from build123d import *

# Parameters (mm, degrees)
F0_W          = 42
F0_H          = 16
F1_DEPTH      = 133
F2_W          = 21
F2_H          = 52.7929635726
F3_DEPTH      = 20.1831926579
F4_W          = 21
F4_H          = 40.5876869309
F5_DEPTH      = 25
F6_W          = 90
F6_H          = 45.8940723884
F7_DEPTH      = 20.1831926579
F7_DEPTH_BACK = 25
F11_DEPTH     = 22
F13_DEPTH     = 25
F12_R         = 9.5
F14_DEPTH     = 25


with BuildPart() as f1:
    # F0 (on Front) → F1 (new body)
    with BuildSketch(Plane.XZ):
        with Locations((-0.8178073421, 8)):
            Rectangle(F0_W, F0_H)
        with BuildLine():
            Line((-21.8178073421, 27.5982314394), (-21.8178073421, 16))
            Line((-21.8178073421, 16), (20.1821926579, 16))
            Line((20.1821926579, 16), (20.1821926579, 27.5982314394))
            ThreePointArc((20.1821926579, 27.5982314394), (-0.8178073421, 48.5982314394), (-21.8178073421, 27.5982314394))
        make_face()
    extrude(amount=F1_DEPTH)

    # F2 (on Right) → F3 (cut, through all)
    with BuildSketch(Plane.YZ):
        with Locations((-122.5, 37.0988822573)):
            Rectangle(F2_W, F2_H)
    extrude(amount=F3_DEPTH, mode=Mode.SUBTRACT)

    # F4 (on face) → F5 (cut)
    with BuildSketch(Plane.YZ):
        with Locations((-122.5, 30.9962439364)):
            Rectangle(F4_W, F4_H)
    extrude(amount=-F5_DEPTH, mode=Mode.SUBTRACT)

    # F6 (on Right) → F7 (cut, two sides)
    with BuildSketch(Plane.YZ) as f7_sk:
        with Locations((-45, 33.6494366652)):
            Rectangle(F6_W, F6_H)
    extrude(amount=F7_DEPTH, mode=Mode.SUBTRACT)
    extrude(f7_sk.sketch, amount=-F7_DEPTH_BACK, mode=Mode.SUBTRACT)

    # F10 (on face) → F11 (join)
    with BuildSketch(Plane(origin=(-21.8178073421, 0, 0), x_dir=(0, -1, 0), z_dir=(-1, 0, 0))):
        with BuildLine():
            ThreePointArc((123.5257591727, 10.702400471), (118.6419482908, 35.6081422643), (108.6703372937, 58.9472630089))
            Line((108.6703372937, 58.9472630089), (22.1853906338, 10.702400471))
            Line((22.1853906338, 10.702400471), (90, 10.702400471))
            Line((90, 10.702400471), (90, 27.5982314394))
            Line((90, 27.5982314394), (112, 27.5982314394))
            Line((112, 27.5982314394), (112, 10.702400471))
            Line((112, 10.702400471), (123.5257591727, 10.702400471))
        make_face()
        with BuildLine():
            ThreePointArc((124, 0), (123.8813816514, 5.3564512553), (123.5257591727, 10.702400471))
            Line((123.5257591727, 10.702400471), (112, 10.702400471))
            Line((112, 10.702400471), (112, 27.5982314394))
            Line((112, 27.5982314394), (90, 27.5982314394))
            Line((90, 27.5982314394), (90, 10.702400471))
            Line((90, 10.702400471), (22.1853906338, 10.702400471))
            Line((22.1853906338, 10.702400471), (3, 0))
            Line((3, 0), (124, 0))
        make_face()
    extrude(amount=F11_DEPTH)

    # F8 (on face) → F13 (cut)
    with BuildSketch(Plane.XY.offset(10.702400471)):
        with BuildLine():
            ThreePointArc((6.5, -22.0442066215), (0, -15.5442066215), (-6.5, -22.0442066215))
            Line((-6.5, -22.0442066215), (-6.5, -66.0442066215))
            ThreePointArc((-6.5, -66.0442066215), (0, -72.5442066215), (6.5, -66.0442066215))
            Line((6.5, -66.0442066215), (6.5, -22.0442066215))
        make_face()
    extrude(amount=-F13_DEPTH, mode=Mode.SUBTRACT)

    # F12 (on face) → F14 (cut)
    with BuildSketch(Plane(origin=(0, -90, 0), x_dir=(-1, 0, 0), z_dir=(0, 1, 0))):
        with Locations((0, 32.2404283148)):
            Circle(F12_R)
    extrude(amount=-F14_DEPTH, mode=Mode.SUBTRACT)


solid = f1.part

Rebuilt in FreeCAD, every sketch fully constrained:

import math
import FreeCAD as App
import Part
import Sketcher
Q = App.Units.Quantity

doc = App.newDocument("Part")
body = doc.addObject("PartDesign::Body", "Body")

# Sketch on XZ plane
sketch1 = doc.addObject("Sketcher::SketchObject", "Sketch")
body.addObject(sketch1)
sketch1.AttachmentSupport = (doc.XZ_Plane, [""])
sketch1.MapMode = "FlatFace"
sketch1.addGeometry([
    Part.LineSegment(App.Vector(-22, 0, 0), App.Vector(20, 0, 0)),
    Part.LineSegment(App.Vector(20, 0, 0), App.Vector(20, 28, 0)),
    Part.ArcOfCircle(Part.Circle(App.Vector(-1, 28, 0), App.Vector(0, 0, 1), 21), math.radians(0), math.radians(180)),
    Part.LineSegment(App.Vector(-22, 28, 0), App.Vector(-22, 0, 0)),
], False)
sketch1.addConstraint([
    Sketcher.Constraint("Coincident", 0, 2, 1, 1),
    Sketcher.Constraint("Tangent", 1, 2, 2, 1),
    Sketcher.Constraint("Tangent", 2, 2, 3, 1),
    Sketcher.Constraint("Coincident", 3, 2, 0, 1),
    Sketcher.Constraint("Horizontal", 0),
    Sketcher.Constraint("Vertical", 1),
    Sketcher.Constraint("Vertical", 3),
    Sketcher.Constraint("PointOnObject", 0, 2, -1),
    Sketcher.Constraint("Radius", 2, Q("21 mm")),
    Sketcher.Constraint("DistanceY", 1, 1, 1, 2, Q("27.598231 mm")),
    Sketcher.Constraint("DistanceX", 2, 3, -1, 1, Q("0.817807 mm")),
])
pad1 = doc.addObject("PartDesign::Pad", "Pad")
body.addObject(pad1)
pad1.Profile = sketch1
pad1.Length = 133

# Sketch on YZ plane
sketch2 = doc.addObject("Sketcher::SketchObject", "Sketch001")
body.addObject(sketch2)
sketch2.AttachmentSupport = (doc.YZ_Plane, [""])
sketch2.MapMode = "FlatFace"
sketch2.addGeometry([
    Part.LineSegment(App.Vector(-133, 63, 0), App.Vector(-133, 11, 0)),
    Part.LineSegment(App.Vector(-133, 11, 0), App.Vector(-112, 11, 0)),
    Part.LineSegment(App.Vector(-112, 11, 0), App.Vector(-112, 63, 0)),
    Part.LineSegment(App.Vector(-112, 63, 0), App.Vector(-133, 63, 0)),
], False)
sketch2.addConstraint([
    Sketcher.Constraint("Coincident", 0, 2, 1, 1),
    Sketcher.Constraint("Coincident", 1, 2, 2, 1),
    Sketcher.Constraint("Coincident", 2, 2, 3, 1),
    Sketcher.Constraint("Coincident", 3, 2, 0, 1),
    Sketcher.Constraint("Vertical", 0),
    Sketcher.Constraint("Horizontal", 1),
    Sketcher.Constraint("Vertical", 2),
    Sketcher.Constraint("Horizontal", 3),
    Sketcher.Constraint("DistanceX", 1, 1, 1, 2, Q("21 mm")),
    Sketcher.Constraint("DistanceX", 0, 2, -1, 1, Q("133 mm")),
    Sketcher.Constraint("DistanceY", -1, 1, 0, 2, Q("10.7024 mm")),
    Sketcher.Constraint("DistanceY", 0, 2, 0, 1, Q("52.792964 mm")),
])
pocket1 = doc.addObject("PartDesign::Pocket", "Pocket")
body.addObject(pocket1)
pocket1.Profile = sketch2
pocket1.Type = "ThroughAll"
pocket1.Reversed = True

# Sketch on YZ plane
sketch3 = doc.addObject("Sketcher::SketchObject", "Sketch002")
body.addObject(sketch3)
sketch3.AttachmentSupport = (doc.YZ_Plane, [""])
sketch3.MapMode = "FlatFace"
sketch3.addGeometry([
    Part.LineSegment(App.Vector(-133, 51, 0), App.Vector(-133, 11, 0)),
    Part.LineSegment(App.Vector(-133, 11, 0), App.Vector(-112, 11, 0)),
    Part.LineSegment(App.Vector(-112, 11, 0), App.Vector(-112, 51, 0)),
    Part.LineSegment(App.Vector(-112, 51, 0), App.Vector(-133, 51, 0)),
], False)
sketch3.addConstraint([
    Sketcher.Constraint("Coincident", 0, 2, 1, 1),
    Sketcher.Constraint("Coincident", 1, 2, 2, 1),
    Sketcher.Constraint("Coincident", 2, 2, 3, 1),
    Sketcher.Constraint("Coincident", 3, 2, 0, 1),
    Sketcher.Constraint("Vertical", 0),
    Sketcher.Constraint("Horizontal", 1),
    Sketcher.Constraint("Vertical", 2),
    Sketcher.Constraint("Horizontal", 3),
    Sketcher.Constraint("DistanceX", 1, 1, 1, 2, Q("21 mm")),
    Sketcher.Constraint("DistanceX", 0, 2, -1, 1, Q("133 mm")),
    Sketcher.Constraint("DistanceY", -1, 1, 0, 2, Q("10.7024 mm")),
    Sketcher.Constraint("DistanceY", 0, 2, 0, 1, Q("40.587687 mm")),
])
pocket2 = doc.addObject("PartDesign::Pocket", "Pocket001")
body.addObject(pocket2)
pocket2.Profile = sketch3
pocket2.Length = 25

# Sketch on YZ plane
sketch4 = doc.addObject("Sketcher::SketchObject", "Sketch003")
body.addObject(sketch4)
sketch4.AttachmentSupport = (doc.YZ_Plane, [""])
sketch4.MapMode = "FlatFace"
sketch4.addGeometry([
    Part.LineSegment(App.Vector(-90, 57, 0), App.Vector(-90, 11, 0)),
    Part.LineSegment(App.Vector(-90, 11, 0), App.Vector(0, 11, 0)),
    Part.LineSegment(App.Vector(0, 11, 0), App.Vector(0, 57, 0)),
    Part.LineSegment(App.Vector(0, 57, 0), App.Vector(-90, 57, 0)),
], False)
sketch4.addConstraint([
    Sketcher.Constraint("Coincident", 0, 2, 1, 1),
    Sketcher.Constraint("Coincident", 1, 2, 2, 1),
    Sketcher.Constraint("Coincident", 2, 2, 3, 1),
    Sketcher.Constraint("Coincident", 3, 2, 0, 1),
    Sketcher.Constraint("Vertical", 0),
    Sketcher.Constraint("Horizontal", 1),
    Sketcher.Constraint("Vertical", 2),
    Sketcher.Constraint("Horizontal", 3),
    Sketcher.Constraint("PointOnObject", 1, 2, -2),
    Sketcher.Constraint("DistanceX", 1, 1, 1, 2, Q("90 mm")),
    Sketcher.Constraint("DistanceY", -1, 1, 0, 2, Q("10.7024 mm")),
    Sketcher.Constraint("DistanceY", 0, 2, 0, 1, Q("45.894072 mm")),
])
pocket3 = doc.addObject("PartDesign::Pocket", "Pocket002")
body.addObject(pocket3)
pocket3.Profile = sketch4
pocket3.Type = "ThroughAll"
pocket3.Midplane = True

# Sketch on YZ plane
sketch5 = doc.addObject("Sketcher::SketchObject", "Sketch004")
body.addObject(sketch5)
sketch5.AttachmentSupport = (doc.YZ_Plane, [""])
sketch5.MapMode = "FlatFace"
sketch5.AttachmentOffset = App.Placement(App.Vector(0, 0, -21.817807), App.Rotation())
sketch5.addGeometry([
    Part.ArcOfCircle(Part.Circle(App.Vector(-3, 0, 0), App.Vector(0, 0, 1), 121), math.radians(151), math.radians(175)),  # 0
    Part.LineSegment(App.Vector(-109, 59, 0), App.Vector(-22, 11, 0)),  # 1
    Part.LineSegment(App.Vector(-22, 11, 0), App.Vector(-3, 0, 0)),  # 2
    Part.LineSegment(App.Vector(-3, 0, 0), App.Vector(-124, 0, 0)),  # 3
    Part.ArcOfCircle(Part.Circle(App.Vector(-3, 0, 0), App.Vector(0, 0, 1), 121), math.radians(174.93), math.radians(180)),  # 4
], False)
sketch5.addConstraint([
    Sketcher.Constraint("Coincident", 0, 1, 1, 1),
    Sketcher.Constraint("Coincident", 1, 2, 2, 1),
    Sketcher.Constraint("Coincident", 2, 2, 3, 1),
    Sketcher.Constraint("Coincident", 3, 2, 4, 2),
    Sketcher.Constraint("Tangent", 4, 1, 0, 2),
    Sketcher.Constraint("Horizontal", 3),
    Sketcher.Constraint("Coincident", 2, 2, 0, 3),
    Sketcher.Constraint("Equal", 0, 4),
    Sketcher.Constraint("PointOnObject", 0, 3, -1),
    Sketcher.Constraint("Parallel", 1, 2),
    Sketcher.Constraint("Horizontal", 1, 2, 4, 1),
    Sketcher.Constraint("Radius", 0, Q("121 mm")),
    Sketcher.Constraint("DistanceX", 0, 3, -1, 1, Q("3 mm")),
    Sketcher.Constraint("DistanceY", -1, 1, 1, 2, Q("10.7024 mm")),
    Sketcher.Constraint("DistanceX", 1, 2, -1, 1, Q("22.185391 mm")),
])
pad2 = doc.addObject("PartDesign::Pad", "Pad001")
body.addObject(pad2)
pad2.Profile = sketch5
pad2.Length = 22
pad2.Reversed = True

# Sketch on XY plane
sketch6 = doc.addObject("Sketcher::SketchObject", "Sketch005")
body.addObject(sketch6)
sketch6.AttachmentSupport = (doc.XY_Plane, [""])
sketch6.MapMode = "FlatFace"
sketch6.AttachmentOffset = App.Placement(App.Vector(0, 0, 10.7024), App.Rotation())
sketch6.addGeometry([
    Part.ArcOfCircle(Part.Circle(App.Vector(0, -22, 0), App.Vector(0, 0, 1), 6), math.radians(0), math.radians(180)),
    Part.LineSegment(App.Vector(-6, -22, 0), App.Vector(-6, -66, 0)),
    Part.ArcOfCircle(Part.Circle(App.Vector(0, -66, 0), App.Vector(0, 0, 1), 6), math.radians(180), math.radians(360)),
    Part.LineSegment(App.Vector(6, -66, 0), App.Vector(6, -22, 0)),
], False)
sketch6.addConstraint([
    Sketcher.Constraint("Tangent", 0, 2, 1, 1),
    Sketcher.Constraint("Tangent", 1, 2, 2, 1),
    Sketcher.Constraint("Tangent", 2, 2, 3, 1),
    Sketcher.Constraint("Tangent", 3, 2, 0, 1),
    Sketcher.Constraint("Vertical", 1),
    Sketcher.Constraint("Vertical", 3),
    Sketcher.Constraint("PointOnObject", 0, 3, -2),
    Sketcher.Constraint("Radius", 0, Q("6.5 mm")),
    Sketcher.Constraint("DistanceY", 1, 2, 1, 1, Q("44 mm")),
    Sketcher.Constraint("DistanceY", 0, 3, -1, 1, Q("22.044207 mm")),
])
pocket4 = doc.addObject("PartDesign::Pocket", "Pocket003")
body.addObject(pocket4)
pocket4.Profile = sketch6
pocket4.Length = 25

# Sketch on XZ plane
sketch7 = doc.addObject("Sketcher::SketchObject", "Sketch006")
body.addObject(sketch7)
sketch7.AttachmentSupport = (doc.XZ_Plane, [""])
sketch7.MapMode = "FlatFace"
sketch7.AttachmentOffset = App.Placement(App.Vector(0, 0, 90), App.Rotation())
sketch7.addGeometry(Part.Circle(App.Vector(0, 32, 0), App.Vector(0, 0, 1), 10), False)
sketch7.addConstraint([
    Sketcher.Constraint("PointOnObject", 0, 3, -2),
    Sketcher.Constraint("Diameter", 0, Q("19 mm")),
    Sketcher.Constraint("DistanceY", -1, 1, 0, 3, Q("32.240428 mm")),
])
pocket5 = doc.addObject("PartDesign::Pocket", "Pocket004")
body.addObject(pocket5)
pocket5.Profile = sketch7
pocket5.Length = 25
pocket5.Reversed = True

doc.recompute()
